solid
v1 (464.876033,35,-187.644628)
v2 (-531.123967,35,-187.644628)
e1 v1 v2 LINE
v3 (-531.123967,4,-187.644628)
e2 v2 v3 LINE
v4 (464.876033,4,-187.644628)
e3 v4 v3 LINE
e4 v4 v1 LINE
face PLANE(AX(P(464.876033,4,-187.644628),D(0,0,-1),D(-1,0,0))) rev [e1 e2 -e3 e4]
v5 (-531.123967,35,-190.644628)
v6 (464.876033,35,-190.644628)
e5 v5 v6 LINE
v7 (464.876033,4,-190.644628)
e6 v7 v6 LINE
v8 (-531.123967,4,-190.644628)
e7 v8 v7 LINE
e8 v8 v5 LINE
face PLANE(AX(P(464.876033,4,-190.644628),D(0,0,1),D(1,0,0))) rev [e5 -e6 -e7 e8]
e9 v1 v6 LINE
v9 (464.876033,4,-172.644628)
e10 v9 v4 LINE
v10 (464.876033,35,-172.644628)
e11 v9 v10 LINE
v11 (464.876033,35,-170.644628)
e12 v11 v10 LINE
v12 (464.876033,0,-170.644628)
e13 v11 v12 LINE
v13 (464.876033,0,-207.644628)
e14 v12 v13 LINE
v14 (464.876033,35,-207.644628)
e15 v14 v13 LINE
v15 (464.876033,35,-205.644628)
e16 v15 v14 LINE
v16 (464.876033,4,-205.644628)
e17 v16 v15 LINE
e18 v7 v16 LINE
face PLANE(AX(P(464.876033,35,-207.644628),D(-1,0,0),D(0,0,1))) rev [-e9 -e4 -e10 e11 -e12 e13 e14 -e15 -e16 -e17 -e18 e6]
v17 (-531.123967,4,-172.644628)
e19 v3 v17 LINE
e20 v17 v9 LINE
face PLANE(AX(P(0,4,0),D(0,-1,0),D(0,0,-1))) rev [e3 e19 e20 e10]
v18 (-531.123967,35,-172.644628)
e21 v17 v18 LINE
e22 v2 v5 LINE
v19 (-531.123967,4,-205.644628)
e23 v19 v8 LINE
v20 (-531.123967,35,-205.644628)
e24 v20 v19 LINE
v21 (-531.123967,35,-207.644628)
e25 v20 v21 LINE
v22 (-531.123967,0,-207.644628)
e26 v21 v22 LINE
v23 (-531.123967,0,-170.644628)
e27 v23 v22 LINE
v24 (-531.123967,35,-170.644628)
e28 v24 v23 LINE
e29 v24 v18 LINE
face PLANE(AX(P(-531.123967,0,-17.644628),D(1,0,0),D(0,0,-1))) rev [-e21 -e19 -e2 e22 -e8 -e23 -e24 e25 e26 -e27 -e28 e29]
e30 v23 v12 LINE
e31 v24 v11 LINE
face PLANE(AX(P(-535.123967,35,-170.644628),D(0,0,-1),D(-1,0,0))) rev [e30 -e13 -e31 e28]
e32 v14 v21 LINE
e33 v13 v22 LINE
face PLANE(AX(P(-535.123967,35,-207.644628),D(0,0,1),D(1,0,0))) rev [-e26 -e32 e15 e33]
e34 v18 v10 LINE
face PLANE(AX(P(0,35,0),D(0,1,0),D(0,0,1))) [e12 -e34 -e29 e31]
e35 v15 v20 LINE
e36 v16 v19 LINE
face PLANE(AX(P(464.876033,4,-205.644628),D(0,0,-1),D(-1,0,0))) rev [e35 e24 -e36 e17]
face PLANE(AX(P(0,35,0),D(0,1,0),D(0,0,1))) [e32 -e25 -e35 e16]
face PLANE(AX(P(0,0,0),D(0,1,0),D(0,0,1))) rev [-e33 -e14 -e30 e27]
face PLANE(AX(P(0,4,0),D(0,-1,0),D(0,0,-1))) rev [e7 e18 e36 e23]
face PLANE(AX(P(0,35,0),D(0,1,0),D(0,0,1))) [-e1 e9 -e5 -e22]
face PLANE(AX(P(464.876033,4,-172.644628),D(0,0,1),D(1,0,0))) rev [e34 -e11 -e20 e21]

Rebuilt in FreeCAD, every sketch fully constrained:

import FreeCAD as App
import Part
import Sketcher


def add_polygon(sketch, points):
    """Adds a closed chain of lines whose ends are joined by coincident constraints."""
    first, n = sketch.GeometryCount, len(points)
    for a, b in zip(points, points[1:] + points[:1]):
        sketch.addGeometry(Part.LineSegment(App.Vector(*a, 0), App.Vector(*b, 0)), False)
    for i in range(n):
        sketch.addConstraint(Sketcher.Constraint("Coincident", first + i, 2, first + (i + 1) % n, 1))

doc = App.newDocument("Part")
body = doc.addObject("PartDesign::Body", "Body")

sketch1 = body.newObject("Sketcher::SketchObject", "Sketch")
sketch1.AttachmentSupport = (doc.getObject("XZ_Plane"), [""])
sketch1.MapMode = "FlatFace"
add_polygon(sketch1, [(-535, -208), (-535, -171), (465, -171), (465, -208)])
sketch1.addConstraint(Sketcher.Constraint("Vertical", 0))
sketch1.addConstraint(Sketcher.Constraint("Horizontal", 1))
sketch1.addConstraint(Sketcher.Constraint("Vertical", 2))
sketch1.addConstraint(Sketcher.Constraint("Horizontal", 3))
sketch1.addConstraint(Sketcher.Constraint("DistanceX", 1, 1, 1, 2, 1000.0))
sketch1.addConstraint(Sketcher.Constraint("DistanceY", 0, 1, 0, 2, 37.0))
sketch1.addConstraint(Sketcher.Constraint("DistanceY", 0, 2, -1, 1, 170.644628))
sketch1.addConstraint(Sketcher.Constraint("DistanceX", 0, 2, -1, 1, 535.123967))
pad1 = body.newObject("PartDesign::Pad", "Pad")
pad1.Profile = sketch1
pad1.Length = 35
pad1.Reversed = True

sketch2 = body.newObject("Sketcher::SketchObject", "Sketch001")
sketch2.AttachmentSupport = (doc.getObject("XZ_Plane"), [""])
sketch2.MapMode = "FlatFace"
sketch2.AttachmentOffset = App.Placement(App.Vector(0, 0, -35), App.Rotation())
add_polygon(sketch2, [(-535, -206), (-535, -191), (465, -191), (465, -206)])
add_polygon(sketch2, [(-535, -188), (-535, -173), (465, -173), (465, -188)])
sketch2.addConstraint(Sketcher.Constraint("Vertical", 0))
sketch2.addConstraint(Sketcher.Constraint("Horizontal", 1))
sketch2.addConstraint(Sketcher.Constraint("Vertical", 2))
sketch2.addConstraint(Sketcher.Constraint("Horizontal", 3))
sketch2.addConstraint(Sketcher.Constraint("Vertical", 4))
sketch2.addConstraint(Sketcher.Constraint("Horizontal", 5))
sketch2.addConstraint(Sketcher.Constraint("Vertical", 6))
sketch2.addConstraint(Sketcher.Constraint("Horizontal", 7))
sketch2.addConstraint(Sketcher.Constraint("Vertical", 3, 2, 4, 2))
sketch2.addConstraint(Sketcher.Constraint("Vertical", 2, 2, 5, 2))
sketch2.addConstraint(Sketcher.Constraint("Equal", 2, 4))
sketch2.addConstraint(Sketcher.Constraint("DistanceX", 1, 1, 1, 2, 1000.0))
sketch2.addConstraint(Sketcher.Constraint("DistanceY", 0, 1, 0, 2, 15.0))
sketch2.addConstraint(Sketcher.Constraint("DistanceY", 0, 2, 4, 2, 18.0))
sketch2.addConstraint(Sketcher.Constraint("DistanceY", 0, 2, -1, 1, 190.644628))
sketch2.addConstraint(Sketcher.Constraint("DistanceX", 0, 2, -1, 1, 535.123967))
pocket1 = body.newObject("PartDesign::Pocket", "Pocket")
pocket1.Profile = sketch2
pocket1.Length = 31
pocket1.Reversed = True

sketch3 = body.newObject("Sketcher::SketchObject", "Sketch002")
sketch3.AttachmentSupport = (doc.getObject("XY_Plane"), [""])
sketch3.MapMode = "FlatFace"
sketch3.AttachmentOffset = App.Placement(App.Vector(0, 0, -207.644628), App.Rotation())
add_polygon(sketch3, [(-531.1, 35), (-531.1, 0), (-535.1, 0), (-535.1, 35)])
sketch3.addConstraint(Sketcher.Constraint("Vertical", 0))
sketch3.addConstraint(Sketcher.Constraint("Horizontal", 1))
sketch3.addConstraint(Sketcher.Constraint("Vertical", 2))
sketch3.addConstraint(Sketcher.Constraint("Horizontal", 3))
sketch3.addConstraint(Sketcher.Constraint("PointOnObject", 0, 2, -1))
sketch3.addConstraint(Sketcher.Constraint("DistanceX", 1, 2, 1, 1, 4.0))
sketch3.addConstraint(Sketcher.Constraint("DistanceY", 0, 2, 0, 1, 35.0))
sketch3.addConstraint(Sketcher.Constraint("DistanceX", 0, 2, -1, 1, 531.123967))
pocket2 = body.newObject("PartDesign::Pocket", "Pocket001")
pocket2.Profile = sketch3
pocket2.Length = 190
pocket2.Reversed = True

doc.recompute()
